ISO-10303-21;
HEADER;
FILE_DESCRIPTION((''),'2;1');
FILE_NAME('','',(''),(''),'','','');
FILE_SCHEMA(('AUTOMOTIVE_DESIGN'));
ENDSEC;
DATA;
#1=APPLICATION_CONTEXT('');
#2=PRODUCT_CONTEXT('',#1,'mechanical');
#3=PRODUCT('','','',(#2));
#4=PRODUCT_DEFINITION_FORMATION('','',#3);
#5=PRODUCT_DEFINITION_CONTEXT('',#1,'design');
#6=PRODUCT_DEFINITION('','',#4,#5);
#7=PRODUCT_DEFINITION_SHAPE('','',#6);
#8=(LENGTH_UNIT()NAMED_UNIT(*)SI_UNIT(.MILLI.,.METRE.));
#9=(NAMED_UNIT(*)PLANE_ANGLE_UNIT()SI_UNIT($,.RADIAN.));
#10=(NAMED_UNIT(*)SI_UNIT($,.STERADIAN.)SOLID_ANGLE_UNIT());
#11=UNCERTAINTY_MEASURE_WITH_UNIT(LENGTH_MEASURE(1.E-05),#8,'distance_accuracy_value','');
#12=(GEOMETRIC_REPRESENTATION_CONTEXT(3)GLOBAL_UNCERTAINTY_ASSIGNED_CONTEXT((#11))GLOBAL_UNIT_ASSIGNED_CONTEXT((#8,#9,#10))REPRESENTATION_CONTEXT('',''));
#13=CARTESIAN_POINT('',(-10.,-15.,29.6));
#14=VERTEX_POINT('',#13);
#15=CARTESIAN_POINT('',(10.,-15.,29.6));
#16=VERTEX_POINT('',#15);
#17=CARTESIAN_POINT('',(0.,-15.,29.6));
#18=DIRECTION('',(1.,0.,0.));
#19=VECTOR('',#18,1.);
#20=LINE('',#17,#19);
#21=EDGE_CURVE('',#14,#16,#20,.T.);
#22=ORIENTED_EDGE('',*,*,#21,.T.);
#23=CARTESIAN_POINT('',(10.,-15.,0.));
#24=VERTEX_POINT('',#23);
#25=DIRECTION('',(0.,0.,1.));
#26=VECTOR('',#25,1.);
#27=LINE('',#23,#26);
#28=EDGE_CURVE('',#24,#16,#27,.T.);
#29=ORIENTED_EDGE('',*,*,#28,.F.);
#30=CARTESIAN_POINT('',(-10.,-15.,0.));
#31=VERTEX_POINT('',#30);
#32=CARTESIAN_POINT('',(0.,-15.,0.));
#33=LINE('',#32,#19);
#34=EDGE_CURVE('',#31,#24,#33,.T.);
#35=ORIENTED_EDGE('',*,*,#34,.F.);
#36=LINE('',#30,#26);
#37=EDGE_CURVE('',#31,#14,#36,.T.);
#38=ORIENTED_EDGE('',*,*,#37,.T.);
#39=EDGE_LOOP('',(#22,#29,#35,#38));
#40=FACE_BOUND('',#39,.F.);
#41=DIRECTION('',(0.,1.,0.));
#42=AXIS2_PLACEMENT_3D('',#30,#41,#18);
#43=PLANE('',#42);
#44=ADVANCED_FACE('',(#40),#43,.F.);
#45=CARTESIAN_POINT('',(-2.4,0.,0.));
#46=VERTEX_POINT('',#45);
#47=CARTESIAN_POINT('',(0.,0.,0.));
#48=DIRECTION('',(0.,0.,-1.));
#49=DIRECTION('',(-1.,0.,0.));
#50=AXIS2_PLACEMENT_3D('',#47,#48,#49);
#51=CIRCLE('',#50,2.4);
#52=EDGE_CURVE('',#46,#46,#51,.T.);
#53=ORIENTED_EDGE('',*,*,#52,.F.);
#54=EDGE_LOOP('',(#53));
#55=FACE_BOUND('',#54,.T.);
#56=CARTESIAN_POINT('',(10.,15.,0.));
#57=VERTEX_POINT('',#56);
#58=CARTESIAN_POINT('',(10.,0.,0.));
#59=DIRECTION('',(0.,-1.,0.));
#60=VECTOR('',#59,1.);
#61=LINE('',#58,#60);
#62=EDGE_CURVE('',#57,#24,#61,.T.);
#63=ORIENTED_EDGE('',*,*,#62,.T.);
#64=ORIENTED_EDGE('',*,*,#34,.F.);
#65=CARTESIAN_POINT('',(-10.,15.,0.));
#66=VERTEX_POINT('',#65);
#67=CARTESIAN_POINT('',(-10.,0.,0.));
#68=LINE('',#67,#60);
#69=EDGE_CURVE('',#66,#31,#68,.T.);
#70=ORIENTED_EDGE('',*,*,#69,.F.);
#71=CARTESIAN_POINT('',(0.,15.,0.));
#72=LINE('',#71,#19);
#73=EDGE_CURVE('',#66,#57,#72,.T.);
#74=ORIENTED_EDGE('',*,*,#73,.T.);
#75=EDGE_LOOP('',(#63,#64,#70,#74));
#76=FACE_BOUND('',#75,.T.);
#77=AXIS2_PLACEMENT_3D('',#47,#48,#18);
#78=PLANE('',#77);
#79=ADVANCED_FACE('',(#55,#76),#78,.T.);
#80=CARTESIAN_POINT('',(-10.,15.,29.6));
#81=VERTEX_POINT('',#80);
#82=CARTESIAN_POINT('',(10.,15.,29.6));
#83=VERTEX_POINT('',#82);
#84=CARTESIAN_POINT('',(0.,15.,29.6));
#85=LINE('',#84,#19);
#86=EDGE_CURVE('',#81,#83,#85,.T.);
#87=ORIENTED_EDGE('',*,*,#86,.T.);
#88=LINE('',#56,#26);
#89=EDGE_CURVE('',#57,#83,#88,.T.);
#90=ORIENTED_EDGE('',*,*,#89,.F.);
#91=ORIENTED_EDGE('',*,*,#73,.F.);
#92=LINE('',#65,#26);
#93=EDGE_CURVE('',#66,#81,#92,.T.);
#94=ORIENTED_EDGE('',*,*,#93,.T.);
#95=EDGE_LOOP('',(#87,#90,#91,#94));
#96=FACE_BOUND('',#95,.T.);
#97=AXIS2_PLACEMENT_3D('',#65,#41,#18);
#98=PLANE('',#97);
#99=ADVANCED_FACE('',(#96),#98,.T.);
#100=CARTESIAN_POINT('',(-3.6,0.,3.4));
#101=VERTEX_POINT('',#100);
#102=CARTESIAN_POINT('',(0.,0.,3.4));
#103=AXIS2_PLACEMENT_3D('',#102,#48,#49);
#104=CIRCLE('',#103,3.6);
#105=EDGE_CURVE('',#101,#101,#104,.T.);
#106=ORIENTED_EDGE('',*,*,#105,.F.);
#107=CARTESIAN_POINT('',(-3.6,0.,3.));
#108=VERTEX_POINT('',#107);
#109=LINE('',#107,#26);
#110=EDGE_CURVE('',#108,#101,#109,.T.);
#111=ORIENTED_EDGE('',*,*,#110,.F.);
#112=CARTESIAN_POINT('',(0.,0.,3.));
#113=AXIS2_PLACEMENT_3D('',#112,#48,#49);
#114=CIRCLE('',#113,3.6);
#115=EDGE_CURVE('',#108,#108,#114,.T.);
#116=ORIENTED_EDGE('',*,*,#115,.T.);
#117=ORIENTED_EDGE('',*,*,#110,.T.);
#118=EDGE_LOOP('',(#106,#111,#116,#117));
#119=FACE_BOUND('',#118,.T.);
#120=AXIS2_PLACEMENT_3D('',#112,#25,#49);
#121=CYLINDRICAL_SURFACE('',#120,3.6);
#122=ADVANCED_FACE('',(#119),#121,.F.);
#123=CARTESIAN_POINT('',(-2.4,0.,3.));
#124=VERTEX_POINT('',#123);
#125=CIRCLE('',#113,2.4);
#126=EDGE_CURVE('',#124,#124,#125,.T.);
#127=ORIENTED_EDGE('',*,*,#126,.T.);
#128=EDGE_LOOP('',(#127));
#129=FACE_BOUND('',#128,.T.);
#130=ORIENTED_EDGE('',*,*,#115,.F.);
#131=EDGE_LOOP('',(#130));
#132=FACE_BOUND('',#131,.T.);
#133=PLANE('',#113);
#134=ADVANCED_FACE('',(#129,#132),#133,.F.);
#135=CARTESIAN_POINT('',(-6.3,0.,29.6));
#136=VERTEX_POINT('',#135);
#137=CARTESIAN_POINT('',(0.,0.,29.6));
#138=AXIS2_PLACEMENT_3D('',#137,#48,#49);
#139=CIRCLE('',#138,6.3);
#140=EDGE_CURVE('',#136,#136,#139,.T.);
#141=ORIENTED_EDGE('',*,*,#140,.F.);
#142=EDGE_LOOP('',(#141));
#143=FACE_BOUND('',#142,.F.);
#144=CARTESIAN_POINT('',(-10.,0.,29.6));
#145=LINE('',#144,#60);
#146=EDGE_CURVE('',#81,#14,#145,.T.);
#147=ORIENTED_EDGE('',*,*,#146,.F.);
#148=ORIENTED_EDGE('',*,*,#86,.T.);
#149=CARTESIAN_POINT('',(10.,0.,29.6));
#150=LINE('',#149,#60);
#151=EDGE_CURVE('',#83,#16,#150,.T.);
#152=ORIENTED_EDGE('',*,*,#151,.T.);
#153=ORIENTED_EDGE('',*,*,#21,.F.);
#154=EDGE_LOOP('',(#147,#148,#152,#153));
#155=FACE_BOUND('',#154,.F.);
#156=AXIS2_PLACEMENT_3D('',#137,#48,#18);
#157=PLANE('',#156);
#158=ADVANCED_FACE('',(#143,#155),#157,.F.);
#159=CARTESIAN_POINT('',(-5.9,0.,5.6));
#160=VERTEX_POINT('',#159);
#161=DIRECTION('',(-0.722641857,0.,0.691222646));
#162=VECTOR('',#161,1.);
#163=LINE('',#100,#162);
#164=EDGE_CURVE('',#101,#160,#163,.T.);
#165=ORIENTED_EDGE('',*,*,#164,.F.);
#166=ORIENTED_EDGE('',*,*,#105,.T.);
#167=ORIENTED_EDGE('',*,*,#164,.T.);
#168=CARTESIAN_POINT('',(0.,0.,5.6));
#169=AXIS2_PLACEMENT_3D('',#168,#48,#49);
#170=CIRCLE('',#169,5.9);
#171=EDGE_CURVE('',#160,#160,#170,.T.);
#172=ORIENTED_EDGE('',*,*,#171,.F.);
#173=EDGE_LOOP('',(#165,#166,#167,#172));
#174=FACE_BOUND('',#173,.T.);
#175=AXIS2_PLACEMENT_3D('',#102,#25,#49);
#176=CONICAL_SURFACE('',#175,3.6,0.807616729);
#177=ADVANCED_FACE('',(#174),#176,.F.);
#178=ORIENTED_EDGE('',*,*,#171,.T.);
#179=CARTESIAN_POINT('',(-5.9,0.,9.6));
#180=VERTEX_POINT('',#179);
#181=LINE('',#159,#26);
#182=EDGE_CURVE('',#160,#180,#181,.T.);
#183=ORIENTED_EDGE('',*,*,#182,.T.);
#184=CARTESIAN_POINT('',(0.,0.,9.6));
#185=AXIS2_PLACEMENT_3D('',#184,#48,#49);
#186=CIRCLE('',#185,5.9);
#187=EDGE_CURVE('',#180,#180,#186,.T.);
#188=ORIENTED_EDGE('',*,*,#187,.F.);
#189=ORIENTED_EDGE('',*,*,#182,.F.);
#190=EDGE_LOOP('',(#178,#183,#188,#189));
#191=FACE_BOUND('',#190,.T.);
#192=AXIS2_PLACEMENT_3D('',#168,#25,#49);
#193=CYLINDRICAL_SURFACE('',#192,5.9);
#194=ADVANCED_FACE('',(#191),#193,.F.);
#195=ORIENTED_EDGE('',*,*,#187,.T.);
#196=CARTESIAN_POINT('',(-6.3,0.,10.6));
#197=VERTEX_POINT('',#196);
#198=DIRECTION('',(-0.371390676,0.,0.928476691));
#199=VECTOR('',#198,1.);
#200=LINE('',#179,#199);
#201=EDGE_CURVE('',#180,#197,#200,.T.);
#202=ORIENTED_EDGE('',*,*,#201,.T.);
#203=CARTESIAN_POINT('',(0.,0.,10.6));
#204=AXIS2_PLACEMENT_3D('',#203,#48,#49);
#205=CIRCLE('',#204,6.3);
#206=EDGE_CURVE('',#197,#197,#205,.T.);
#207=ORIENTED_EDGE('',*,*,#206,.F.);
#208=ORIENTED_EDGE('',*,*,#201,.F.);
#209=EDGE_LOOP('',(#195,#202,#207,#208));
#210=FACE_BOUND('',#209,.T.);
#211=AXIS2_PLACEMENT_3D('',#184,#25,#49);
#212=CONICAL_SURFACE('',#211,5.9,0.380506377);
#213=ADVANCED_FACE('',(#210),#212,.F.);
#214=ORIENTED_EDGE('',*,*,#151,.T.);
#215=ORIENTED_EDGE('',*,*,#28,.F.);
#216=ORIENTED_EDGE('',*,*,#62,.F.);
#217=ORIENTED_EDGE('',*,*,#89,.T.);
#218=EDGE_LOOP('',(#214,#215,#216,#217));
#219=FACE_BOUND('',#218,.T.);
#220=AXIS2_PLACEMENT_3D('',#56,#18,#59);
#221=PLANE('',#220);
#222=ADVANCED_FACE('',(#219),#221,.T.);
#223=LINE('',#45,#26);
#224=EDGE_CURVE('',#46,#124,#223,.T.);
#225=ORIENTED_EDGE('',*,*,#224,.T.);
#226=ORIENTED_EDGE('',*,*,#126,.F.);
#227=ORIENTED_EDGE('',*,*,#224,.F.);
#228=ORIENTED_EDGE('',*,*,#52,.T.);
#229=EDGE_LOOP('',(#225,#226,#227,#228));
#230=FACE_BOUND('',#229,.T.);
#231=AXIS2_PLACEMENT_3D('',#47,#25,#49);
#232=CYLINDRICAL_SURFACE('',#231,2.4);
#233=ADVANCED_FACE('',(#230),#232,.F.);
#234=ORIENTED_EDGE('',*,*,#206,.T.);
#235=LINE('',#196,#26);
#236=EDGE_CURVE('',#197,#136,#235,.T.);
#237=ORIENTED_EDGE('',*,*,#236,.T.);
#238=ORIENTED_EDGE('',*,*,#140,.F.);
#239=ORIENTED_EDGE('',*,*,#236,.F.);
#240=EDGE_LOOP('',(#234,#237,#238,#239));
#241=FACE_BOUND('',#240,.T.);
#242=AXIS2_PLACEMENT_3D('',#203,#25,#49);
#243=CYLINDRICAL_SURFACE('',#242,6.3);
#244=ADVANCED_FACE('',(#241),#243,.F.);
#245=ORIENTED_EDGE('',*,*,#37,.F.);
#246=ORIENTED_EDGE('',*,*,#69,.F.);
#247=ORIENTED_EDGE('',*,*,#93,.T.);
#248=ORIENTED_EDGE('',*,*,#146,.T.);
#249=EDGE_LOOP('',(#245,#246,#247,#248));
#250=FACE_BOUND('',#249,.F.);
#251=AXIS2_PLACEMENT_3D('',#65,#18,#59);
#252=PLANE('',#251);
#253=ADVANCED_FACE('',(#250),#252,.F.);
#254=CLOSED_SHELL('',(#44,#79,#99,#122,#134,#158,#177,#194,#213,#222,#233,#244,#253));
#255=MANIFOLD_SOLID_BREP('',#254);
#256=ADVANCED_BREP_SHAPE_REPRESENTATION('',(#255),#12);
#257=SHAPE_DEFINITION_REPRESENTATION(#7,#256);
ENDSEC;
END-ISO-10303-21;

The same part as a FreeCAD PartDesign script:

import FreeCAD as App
import Part
import Sketcher

V = App.Vector
Q = App.Units.Quantity

doc = App.newDocument("Part")
body = doc.addObject("PartDesign::Body", "Body")

# Sketch on XZ plane
sketch1 = doc.addObject("Sketcher::SketchObject", "Sketch")
body.addObject(sketch1)
sketch1.AttachmentSupport = (doc.XZ_Plane, [""])
sketch1.MapMode = "FlatFace"
sketch1.addGeometry([
    Part.LineSegment(V(-3.6, 3, 0), V(-3.6, 3.4, 0)),  # 0
    Part.LineSegment(V(-3.6, 3.4, 0), V(-5.9, 5.6, 0)),  # 1
    Part.LineSegment(V(-5.9, 5.6, 0), V(-5.9, 9.6, 0)),  # 2
    Part.LineSegment(V(-5.9, 9.6, 0), V(-6.3, 10.6, 0)),  # 3
    Part.LineSegment(V(-6.3, 10.6, 0), V(-6.3, 29.6, 0)),  # 4
    Part.LineSegment(V(-6.3, 29.6, 0), V(-8.3, 29.6, 0)),  # 5
    Part.LineSegment(V(-8.3, 29.6, 0), V(-8.3, 0, 0)),  # 6
    Part.LineSegment(V(-8.3, 0, 0), V(-2.4, 0, 0)),  # 7
    Part.LineSegment(V(-2.4, 0, 0), V(-2.4, 3, 0)),  # 8
    Part.LineSegment(V(-2.4, 3, 0), V(-3.6, 3, 0)),  # 9
], False)
sketch1.addConstraint([
    Sketcher.Constraint("Coincident", 0, 2, 1, 1),
    Sketcher.Constraint("Coincident", 1, 2, 2, 1),
    Sketcher.Constraint("Coincident", 2, 2, 3, 1),
    Sketcher.Constraint("Coincident", 3, 2, 4, 1),
    Sketcher.Constraint("Coincident", 4, 2, 5, 1),
    Sketcher.Constraint("Coincident", 5, 2, 6, 1),
    Sketcher.Constraint("Coincident", 6, 2, 7, 1),
    Sketcher.Constraint("Coincident", 7, 2, 8, 1),
    Sketcher.Constraint("Coincident", 8, 2, 9, 1),
    Sketcher.Constraint("Coincident", 9, 2, 0, 1),
    Sketcher.Constraint("Vertical", 0),
    Sketcher.Constraint("Vertical", 2),
    Sketcher.Constraint("Vertical", 4),
    Sketcher.Constraint("Horizontal", 5),
    Sketcher.Constraint("Vertical", 6),
    Sketcher.Constraint("Horizontal", 7),
    Sketcher.Constraint("Vertical", 8),
    Sketcher.Constraint("Horizontal", 9),
    Sketcher.Constraint("PointOnObject", 6, 2, -1),
    Sketcher.Constraint("DistanceX", 5, 2, 5, 1, Q("2 mm")),
    Sketcher.Constraint("DistanceY", 2, 1, 2, 2, Q("4 mm")),
    Sketcher.Constraint("DistanceY", 4, 1, 4, 2, Q("19 mm")),
    Sketcher.Constraint("DistanceY", 8, 1, 8, 2, Q("3 mm")),
    Sketcher.Constraint("DistanceX", 7, 1, 7, 2, Q("5.9 mm")),
    Sketcher.Constraint("DistanceX", 9, 2, 9, 1, Q("1.2 mm")),
    Sketcher.Constraint("DistanceY", 0, 1, 0, 2, Q("0.4 mm")),
    Sketcher.Constraint("DistanceY", 6, 2, 6, 1, Q("29.6 mm")),
    Sketcher.Constraint("DistanceY", 2, 2, 3, 2, Q("1 mm")),
    Sketcher.Constraint("DistanceX", 0, 2, -1, 1, Q("3.6 mm")),
    Sketcher.Constraint("DistanceX", 1, 2, -1, 1, Q("5.9 mm")),
])
revolution = doc.addObject("PartDesign::Revolution", "Revolution")
body.addObject(revolution)
revolution.Profile = sketch1
revolution.ReferenceAxis = (sketch1, ["V_Axis"])
revolution.Angle = 360

# Sketch on XY plane
sketch2 = doc.addObject("Sketcher::SketchObject", "Sketch001")
body.addObject(sketch2)
sketch2.AttachmentSupport = (doc.XY_Plane, [""])
sketch2.MapMode = "FlatFace"
sketch2.addGeometry([
    Part.LineSegment(V(-10, -15, 0), V(-10, 15, 0)),  # 0
    Part.LineSegment(V(-10, 15, 0), V(10, 15, 0)),  # 1
    Part.LineSegment(V(10, 15, 0), V(10, -15, 0)),  # 2
    Part.LineSegment(V(10, -15, 0), V(-10, -15, 0)),  # 3
    Part.Circle(V(0, 0, 0), V(0, 0, 1), 8),  # 4
], False)
sketch2.addConstraint([
    Sketcher.Constraint("Coincident", 0, 2, 1, 1),
    Sketcher.Constraint("Coincident", 1, 2, 2, 1),
    Sketcher.Constraint("Coincident", 2, 2, 3, 1),
    Sketcher.Constraint("Coincident", 3, 2, 0, 1),
    Sketcher.Constraint("Vertical", 0),
    Sketcher.Constraint("Horizontal", 1),
    Sketcher.Constraint("Vertical", 2),
    Sketcher.Constraint("Horizontal", 3),
    Sketcher.Constraint("Coincident", 4, 3, -1, 1),
    Sketcher.Constraint("Symmetric", 0, 2, 2, 2, -1, 1),
    Sketcher.Constraint("Diameter", 4, Q("16.6 mm")),
    Sketcher.Constraint("DistanceX", 1, 1, 1, 2, Q("20 mm")),
    Sketcher.Constraint("DistanceY", 0, 1, 0, 2, Q("30 mm")),
])
pad1 = doc.addObject("PartDesign::Pad", "Pad")
body.addObject(pad1)
pad1.Profile = sketch2
pad1.Length = 29.6

doc.recompute()
